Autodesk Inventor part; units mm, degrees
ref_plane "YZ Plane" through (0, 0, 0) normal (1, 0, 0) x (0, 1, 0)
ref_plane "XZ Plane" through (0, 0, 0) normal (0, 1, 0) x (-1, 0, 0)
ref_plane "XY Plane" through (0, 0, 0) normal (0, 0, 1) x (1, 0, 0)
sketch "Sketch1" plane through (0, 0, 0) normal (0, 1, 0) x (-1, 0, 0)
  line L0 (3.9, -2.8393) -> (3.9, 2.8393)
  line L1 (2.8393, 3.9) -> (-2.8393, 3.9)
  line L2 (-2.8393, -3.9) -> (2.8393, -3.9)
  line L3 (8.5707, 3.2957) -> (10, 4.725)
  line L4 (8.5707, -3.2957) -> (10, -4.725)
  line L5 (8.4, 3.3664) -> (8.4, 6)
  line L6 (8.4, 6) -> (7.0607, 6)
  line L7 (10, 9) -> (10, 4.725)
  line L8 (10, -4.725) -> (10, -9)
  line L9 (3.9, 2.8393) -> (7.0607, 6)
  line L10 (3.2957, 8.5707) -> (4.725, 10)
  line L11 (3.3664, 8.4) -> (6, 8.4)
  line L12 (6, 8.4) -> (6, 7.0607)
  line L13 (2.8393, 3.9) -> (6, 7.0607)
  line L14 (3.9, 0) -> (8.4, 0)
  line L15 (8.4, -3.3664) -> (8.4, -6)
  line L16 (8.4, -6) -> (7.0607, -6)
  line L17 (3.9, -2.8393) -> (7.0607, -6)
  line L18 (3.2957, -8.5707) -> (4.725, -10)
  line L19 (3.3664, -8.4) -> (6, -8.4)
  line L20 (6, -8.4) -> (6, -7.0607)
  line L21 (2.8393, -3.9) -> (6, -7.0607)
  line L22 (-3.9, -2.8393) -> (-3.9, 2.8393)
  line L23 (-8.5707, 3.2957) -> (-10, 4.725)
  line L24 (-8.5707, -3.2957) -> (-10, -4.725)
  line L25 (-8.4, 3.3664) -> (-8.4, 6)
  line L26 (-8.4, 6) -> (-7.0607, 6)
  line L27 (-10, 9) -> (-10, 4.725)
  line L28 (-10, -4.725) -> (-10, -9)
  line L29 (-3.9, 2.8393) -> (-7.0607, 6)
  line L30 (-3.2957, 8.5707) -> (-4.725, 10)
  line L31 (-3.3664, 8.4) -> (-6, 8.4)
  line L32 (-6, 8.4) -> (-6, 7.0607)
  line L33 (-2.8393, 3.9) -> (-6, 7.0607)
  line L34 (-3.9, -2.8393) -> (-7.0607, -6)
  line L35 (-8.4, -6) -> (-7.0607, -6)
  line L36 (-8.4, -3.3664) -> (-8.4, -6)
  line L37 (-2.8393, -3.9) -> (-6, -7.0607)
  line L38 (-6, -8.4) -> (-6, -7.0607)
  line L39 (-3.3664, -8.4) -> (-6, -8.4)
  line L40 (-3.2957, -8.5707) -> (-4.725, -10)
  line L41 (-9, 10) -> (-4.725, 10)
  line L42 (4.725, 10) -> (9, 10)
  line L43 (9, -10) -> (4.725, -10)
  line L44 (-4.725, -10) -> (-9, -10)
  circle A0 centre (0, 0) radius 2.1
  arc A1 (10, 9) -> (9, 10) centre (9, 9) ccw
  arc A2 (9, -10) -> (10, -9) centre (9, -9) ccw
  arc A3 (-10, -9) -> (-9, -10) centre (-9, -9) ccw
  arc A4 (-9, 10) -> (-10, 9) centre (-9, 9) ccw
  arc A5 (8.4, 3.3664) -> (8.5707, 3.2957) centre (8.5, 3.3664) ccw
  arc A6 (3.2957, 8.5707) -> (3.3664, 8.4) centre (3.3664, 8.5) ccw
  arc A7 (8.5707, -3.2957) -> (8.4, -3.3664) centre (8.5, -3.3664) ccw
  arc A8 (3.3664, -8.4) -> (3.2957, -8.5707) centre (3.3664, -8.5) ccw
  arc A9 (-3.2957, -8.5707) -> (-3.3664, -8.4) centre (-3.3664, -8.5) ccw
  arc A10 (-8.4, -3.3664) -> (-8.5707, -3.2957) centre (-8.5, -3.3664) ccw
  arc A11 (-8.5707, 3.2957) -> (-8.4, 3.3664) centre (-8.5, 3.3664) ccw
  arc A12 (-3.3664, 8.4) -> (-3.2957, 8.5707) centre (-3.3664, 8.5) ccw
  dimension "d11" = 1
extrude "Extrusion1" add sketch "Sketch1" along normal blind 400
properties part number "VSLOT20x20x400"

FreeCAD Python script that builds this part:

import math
import FreeCAD as App
import Part
import Sketcher

V = App.Vector
Q = App.Units.Quantity

doc = App.newDocument("Part")
body = doc.addObject("PartDesign::Body", "Body")

sketch1 = doc.addObject("Sketcher::SketchObject", "Sketch")
body.addObject(sketch1)
sketch1.AttachmentSupport = (doc.XZ_Plane, [""])
sketch1.MapMode = "FlatFace"
sketch1.addGeometry([
    Part.LineSegment(V(-7.06, -6, 0), V(-3.9, -2.84, 0)),
    Part.LineSegment(V(-3.9, -2.84, 0), V(-3.9, 2.84, 0)),
    Part.LineSegment(V(-3.9, 2.84, 0), V(-7.06, 6, 0)),
    Part.LineSegment(V(-7.06, 6, 0), V(-8.4, 6, 0)),
    Part.LineSegment(V(-8.4, 6, 0), V(-8.4, 3.37, 0)),
    Part.ArcOfCircle(Part.Circle(V(-8.5, 3.37, 0), V(0, 0, 1), 0.1), math.radians(-135), math.radians(0)),
    Part.LineSegment(V(-8.57, 3.3, 0), V(-10, 4.72, 0)),
    Part.LineSegment(V(-10, 4.72, 0), V(-10, 9, 0)),
    Part.ArcOfCircle(Part.Circle(V(-9, 9, 0), V(0, 0, 1), 1), math.radians(90), math.radians(180)),
    Part.LineSegment(V(-9, 10, 0), V(-4.72, 10, 0)),
    Part.LineSegment(V(-4.72, 10, 0), V(-3.3, 8.57, 0)),
    Part.ArcOfCircle(Part.Circle(V(-3.37, 8.5, 0), V(0, 0, 1), 0.1), math.radians(-90), math.radians(45)),
    Part.LineSegment(V(-3.37, 8.4, 0), V(-6, 8.4, 0)),
    Part.LineSegment(V(-6, 8.4, 0), V(-6, 7.06, 0)),
    Part.LineSegment(V(-6, 7.06, 0), V(-2.84, 3.9, 0)),
    Part.LineSegment(V(-2.84, 3.9, 0), V(2.84, 3.9, 0)),
    Part.LineSegment(V(2.84, 3.9, 0), V(6, 7.06, 0)),
    Part.LineSegment(V(6, 7.06, 0), V(6, 8.4, 0)),
    Part.LineSegment(V(6, 8.4, 0), V(3.37, 8.4, 0)),
    Part.ArcOfCircle(Part.Circle(V(3.37, 8.5, 0), V(0, 0, 1), 0.1), math.radians(135), math.radians(270)),
    Part.LineSegment(V(3.3, 8.57, 0), V(4.72, 10, 0)),
    Part.LineSegment(V(4.72, 10, 0), V(9, 10, 0)),
    Part.ArcOfCircle(Part.Circle(V(9, 9, 0), V(0, 0, 1), 1), math.radians(0), math.radians(90)),
    Part.LineSegment(V(10, 9, 0), V(10, 4.72, 0)),
    Part.LineSegment(V(10, 4.72, 0), V(8.57, 3.3, 0)),
    Part.ArcOfCircle(Part.Circle(V(8.5, 3.37, 0), V(0, 0, 1), 0.1), math.radians(180), math.radians(315)),
    Part.LineSegment(V(8.4, 3.37, 0), V(8.4, 6, 0)),
    Part.LineSegment(V(8.4, 6, 0), V(7.06, 6, 0)),
    Part.LineSegment(V(7.06, 6, 0), V(3.9, 2.84, 0)),
    Part.LineSegment(V(3.9, 2.84, 0), V(3.9, -2.84, 0)),
    Part.LineSegment(V(3.9, -2.84, 0), V(7.06, -6, 0)),
    Part.LineSegment(V(7.06, -6, 0), V(8.4, -6, 0)),
    Part.LineSegment(V(8.4, -6, 0), V(8.4, -3.37, 0)),
    Part.ArcOfCircle(Part.Circle(V(8.5, -3.37, 0), V(0, 0, 1), 0.1), math.radians(45), math.radians(180)),
    Part.LineSegment(V(8.57, -3.3, 0), V(10, -4.72, 0)),
    Part.LineSegment(V(10, -4.72, 0), V(10, -9, 0)),
    Part.ArcOfCircle(Part.Circle(V(9, -9, 0), V(0, 0, 1), 1), math.radians(-90), math.radians(0)),
    Part.LineSegment(V(9, -10, 0), V(4.72, -10, 0)),
    Part.LineSegment(V(4.72, -10, 0), V(3.3, -8.57, 0)),
    Part.ArcOfCircle(Part.Circle(V(3.37, -8.5, 0), V(0, 0, 1), 0.1), math.radians(90), math.radians(225)),
    Part.LineSegment(V(3.37, -8.4, 0), V(6, -8.4, 0)),
    Part.LineSegment(V(6, -8.4, 0), V(6, -7.06, 0)),
    Part.LineSegment(V(6, -7.06, 0), V(2.84, -3.9, 0)),
    Part.LineSegment(V(2.84, -3.9, 0), V(-2.84, -3.9, 0)),
    Part.LineSegment(V(-2.84, -3.9, 0), V(-6, -7.06, 0)),
    Part.LineSegment(V(-6, -7.06, 0), V(-6, -8.4, 0)),
    Part.LineSegment(V(-6, -8.4, 0), V(-3.37, -8.4, 0)),
    Part.ArcOfCircle(Part.Circle(V(-3.37, -8.5, 0), V(0, 0, 1), 0.1), math.radians(-45), math.radians(90)),
    Part.LineSegment(V(-3.3, -8.57, 0), V(-4.72, -10, 0)),
    Part.LineSegment(V(-4.72, -10, 0), V(-9, -10, 0)),
    Part.ArcOfCircle(Part.Circle(V(-9, -9, 0), V(0, 0, 1), 1), math.radians(180), math.radians(270)),
    Part.LineSegment(V(-10, -9, 0), V(-10, -4.72, 0)),
    Part.LineSegment(V(-10, -4.72, 0), V(-8.57, -3.3, 0)),
    Part.ArcOfCircle(Part.Circle(V(-8.5, -3.37, 0), V(0, 0, 1), 0.1), math.radians(0), math.radians(135)),
    Part.LineSegment(V(-8.4, -3.37, 0), V(-8.4, -6, 0)),
    Part.LineSegment(V(-8.4, -6, 0), V(-7.06, -6, 0)),
    Part.Circle(V(0, 0, 0), V(0, 0, 1), 2.1),
], False)
sketch1.addConstraint([
    Sketcher.Constraint("Coincident", 0, 2, 1, 1),
    Sketcher.Constraint("Coincident", 1, 2, 2, 1),
    Sketcher.Constraint("Coincident", 2, 2, 3, 1),
    Sketcher.Constraint("Coincident", 3, 2, 4, 1),
    Sketcher.Constraint("Tangent", 4, 2, 5, 2),
    Sketcher.Constraint("Tangent", 5, 1, 6, 1),
    Sketcher.Constraint("Coincident", 6, 2, 7, 1),
    Sketcher.Constraint("Tangent", 7, 2, 8, 2),
    Sketcher.Constraint("Tangent", 8, 1, 9, 1),
    Sketcher.Constraint("Coincident", 9, 2, 10, 1),
    Sketcher.Constraint("Tangent", 10, 2, 11, 2),
    Sketcher.Constraint("Tangent", 11, 1, 12, 1),
    Sketcher.Constraint("Coincident", 12, 2, 13, 1),
    Sketcher.Constraint("Coincident", 13, 2, 14, 1),
    Sketcher.Constraint("Coincident", 14, 2, 15, 1),
    Sketcher.Constraint("Coincident", 15, 2, 16, 1),
    Sketcher.Constraint("Coincident", 16, 2, 17, 1),
    Sketcher.Constraint("Coincident", 17, 2, 18, 1),
    Sketcher.Constraint("Tangent", 18, 2, 19, 2),
    Sketcher.Constraint("Tangent", 19, 1, 20, 1),
    Sketcher.Constraint("Coincident", 20, 2, 21, 1),
    Sketcher.Constraint("Tangent", 21, 2, 22, 2),
    Sketcher.Constraint("Tangent", 22, 1, 23, 1),
    Sketcher.Constraint("Coincident", 23, 2, 24, 1),
    Sketcher.Constraint("Tangent", 24, 2, 25, 2),
    Sketcher.Constraint("Tangent", 25, 1, 26, 1),
    Sketcher.Constraint("Coincident", 26, 2, 27, 1),
    Sketcher.Constraint("Coincident", 27, 2, 28, 1),
    Sketcher.Constraint("Coincident", 28, 2, 29, 1),
    Sketcher.Constraint("Coincident", 29, 2, 30, 1),
    Sketcher.Constraint("Coincident", 30, 2, 31, 1),
    Sketcher.Constraint("Coincident", 31, 2, 32, 1),
    Sketcher.Constraint("Tangent", 32, 2, 33, 2),
    Sketcher.Constraint("Tangent", 33, 1, 34, 1),
    Sketcher.Constraint("Coincident", 34, 2, 35, 1),
    Sketcher.Constraint("Tangent", 35, 2, 36, 2),
    Sketcher.Constraint("Tangent", 36, 1, 37, 1),
    Sketcher.Constraint("Coincident", 37, 2, 38, 1),
    Sketcher.Constraint("Tangent", 38, 2, 39, 2),
    Sketcher.Constraint("Tangent", 39, 1, 40, 1),
    Sketcher.Constraint("Coincident", 40, 2, 41, 1),
    Sketcher.Constraint("Coincident", 41, 2, 42, 1),
    Sketcher.Constraint("Coincident", 42, 2, 43, 1),
    Sketcher.Constraint("Coincident", 43, 2, 44, 1),
    Sketcher.Constraint("Coincident", 44, 2, 45, 1),
    Sketcher.Constraint("Coincident", 45, 2, 46, 1),
    Sketcher.Constraint("Tangent", 46, 2, 47, 2),
    Sketcher.Constraint("Tangent", 47, 1, 48, 1),
    Sketcher.Constraint("Coincident", 48, 2, 49, 1),
    Sketcher.Constraint("Tangent", 49, 2, 50, 2),
    Sketcher.Constraint("Tangent", 50, 1, 51, 1),
    Sketcher.Constraint("Coincident", 51, 2, 52, 1),
    Sketcher.Constraint("Tangent", 52, 2, 53, 2),
    Sketcher.Constraint("Tangent", 53, 1, 54, 1),
    Sketcher.Constraint("Coincident", 54, 2, 55, 1),
    Sketcher.Constraint("Coincident", 55, 2, 0, 1),
    Sketcher.Constraint("Vertical", 1),
    Sketcher.Constraint("Horizontal", 3),
    Sketcher.Constraint("Vertical", 4),
    Sketcher.Constraint("Vertical", 7),
    Sketcher.Constraint("Horizontal", 9),
    Sketcher.Constraint("Horizontal", 12),
    Sketcher.Constraint("Vertical", 13),
    Sketcher.Constraint("Horizontal", 15),
    Sketcher.Constraint("Vertical", 17),
    Sketcher.Constraint("Horizontal", 18),
    Sketcher.Constraint("Horizontal", 21),
    Sketcher.Constraint("Vertical", 23),
    Sketcher.Constraint("Vertical", 26),
    Sketcher.Constraint("Horizontal", 27),
    Sketcher.Constraint("Vertical", 29),
    Sketcher.Constraint("Horizontal", 31),
    Sketcher.Constraint("Vertical", 32),
    Sketcher.Constraint("Vertical", 35),
    Sketcher.Constraint("Horizontal", 37),
    Sketcher.Constraint("Horizontal", 40),
    Sketcher.Constraint("Vertical", 41),
    Sketcher.Constraint("Horizontal", 43),
    Sketcher.Constraint("Vertical", 45),
    Sketcher.Constraint("Horizontal", 46),
    Sketcher.Constraint("Horizontal", 49),
    Sketcher.Constraint("Vertical", 51),
    Sketcher.Constraint("Vertical", 54),
    Sketcher.Constraint("Horizontal", 55),
    Sketcher.Constraint("Coincident", 56, 3, -1, 1),
    Sketcher.Constraint("Equal", 5, 11),
    Sketcher.Constraint("Equal", 11, 19),
    Sketcher.Constraint("Equal", 8, 22),
    Sketcher.Constraint("Equal", 19, 25),
    Sketcher.Constraint("Equal", 25, 33),
    Sketcher.Constraint("Equal", 22, 36),
    Sketcher.Constraint("Equal", 33, 39),
    Sketcher.Constraint("Equal", 39, 47),
    Sketcher.Constraint("Equal", 36, 50),
    Sketcher.Constraint("Equal", 47, 53),
    Sketcher.Constraint("Symmetric", 5, 3, 33, 3, -1, 1),
    Sketcher.Constraint("Symmetric", 8, 3, 36, 3, -1, 1),
    Sketcher.Constraint("Symmetric", 11, 3, 39, 3, -1, 1),
    Sketcher.Constraint("Symmetric", 19, 3, 47, 3, -1, 1),
    Sketcher.Constraint("Symmetric", 22, 3, 50, 3, -1, 1),
    Sketcher.Constraint("Symmetric", 25, 3, 53, 3, -1, 1),
    Sketcher.Constraint("Symmetric", 0, 2, 28, 2, -1, 1),
    Sketcher.Constraint("Symmetric", 2, 2, 30, 2, -1, 1),
    Sketcher.Constraint("Symmetric", 13, 2, 41, 2, -1, 1),
    Sketcher.Constraint("Symmetric", 14, 2, 42, 2, -1, 1),
    Sketcher.Constraint("Symmetric", 16, 2, 44, 2, -1, 1),
    Sketcher.Constraint("Symmetric", 27, 2, 55, 2, -1, 1),
    Sketcher.Constraint("Symmetric", 11, 3, 19, 3, -2),
    Sketcher.Constraint("Symmetric", 8, 3, 22, 3, -2),
    Sketcher.Constraint("Symmetric", 5, 3, 25, 3, -2),
    Sketcher.Constraint("Symmetric", 13, 2, 16, 2, -2),
    Sketcher.Constraint("Symmetric", 2, 2, 27, 2, -2),
    Sketcher.Constraint("Perpendicular", 0, 2),
    Sketcher.Constraint("Parallel", 2, 6),
    Sketcher.Constraint("Parallel", 6, 10),
    Sketcher.Constraint("Parallel", 10, 14),
    Sketcher.Constraint("Perpendicular", 14, 16),
    Sketcher.Constraint("Parallel", 16, 20),
    Sketcher.Constraint("Parallel", 20, 24),
    Sketcher.Constraint("Perpendicular", 28, 30),
    Sketcher.Constraint("Parallel", 30, 34),
    Sketcher.Constraint("Parallel", 34, 38),
    Sketcher.Constraint("Perpendicular", 42, 44),
    Sketcher.Constraint("Parallel", 44, 48),
    Sketcher.Constraint("Parallel", 48, 52),
    Sketcher.Constraint("Horizontal", 10, 2, 19, 1),
    Sketcher.Constraint("Equal", 43, 1),
    Sketcher.Constraint("Equal", 46, 4),
    Sketcher.Constraint("Equal", 49, 7),
    Sketcher.Constraint("Equal", 55, 13),
    Sketcher.Constraint("Equal", 6, 10),
    Sketcher.Constraint("Equal", 2, 14),
    Sketcher.Constraint("Radius", 8, Q("1 mm")),
    Sketcher.Constraint("Diameter", 56, Q("4.2 mm")),
    Sketcher.Constraint("Radius", 5, Q("0.1 mm")),
    Sketcher.Constraint("DistanceX", 8, 3, -1, 1, Q("9 mm")),
    Sketcher.Constraint("DistanceY", -1, 1, 2, 2, Q("6 mm")),
    Sketcher.Constraint("DistanceX", 5, 3, -1, 1, Q("8.5 mm")),
    Sketcher.Constraint("DistanceX", 0, 2, -1, 1, Q("3.9 mm")),
    Sketcher.Constraint("Distance", 0, Q("4.47 mm")),
    Sketcher.Constraint("DistanceX", 9, 1, 9, 2, Q("4.275 mm")),
])
pad1 = doc.addObject("PartDesign::Pad", "Pad")
body.addObject(pad1)
pad1.Profile = sketch1
pad1.Length = 400
pad1.Reversed = True

doc.recompute()
